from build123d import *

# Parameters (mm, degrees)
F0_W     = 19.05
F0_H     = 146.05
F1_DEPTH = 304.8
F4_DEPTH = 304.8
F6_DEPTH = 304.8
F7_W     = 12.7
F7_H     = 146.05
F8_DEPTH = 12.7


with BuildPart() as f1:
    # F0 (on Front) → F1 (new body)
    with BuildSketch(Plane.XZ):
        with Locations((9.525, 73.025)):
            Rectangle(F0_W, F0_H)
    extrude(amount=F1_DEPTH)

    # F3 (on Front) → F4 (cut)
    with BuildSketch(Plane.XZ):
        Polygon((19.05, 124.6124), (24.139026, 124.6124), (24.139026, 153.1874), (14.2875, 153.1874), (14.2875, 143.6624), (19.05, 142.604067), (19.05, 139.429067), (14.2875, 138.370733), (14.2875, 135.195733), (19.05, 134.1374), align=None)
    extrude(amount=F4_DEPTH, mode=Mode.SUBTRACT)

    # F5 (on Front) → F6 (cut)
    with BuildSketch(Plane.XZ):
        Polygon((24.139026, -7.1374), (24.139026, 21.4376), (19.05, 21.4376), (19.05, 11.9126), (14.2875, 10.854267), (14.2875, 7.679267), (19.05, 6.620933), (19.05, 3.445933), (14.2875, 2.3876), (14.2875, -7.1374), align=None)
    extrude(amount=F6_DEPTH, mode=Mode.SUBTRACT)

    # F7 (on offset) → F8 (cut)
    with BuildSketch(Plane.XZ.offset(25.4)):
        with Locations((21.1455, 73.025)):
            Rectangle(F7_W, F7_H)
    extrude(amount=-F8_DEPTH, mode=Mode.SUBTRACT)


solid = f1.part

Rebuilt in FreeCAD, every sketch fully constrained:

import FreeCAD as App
import Part
import Sketcher

V = App.Vector
Q = App.Units.Quantity


def add_polygon(sketch, points):
    """Adds a closed chain of lines whose ends are joined by coincident constraints."""
    first, n = sketch.GeometryCount, len(points)
    for a, b in zip(points, points[1:] + points[:1]):
        sketch.addGeometry(Part.LineSegment(App.Vector(*a, 0), App.Vector(*b, 0)), False)
    for i in range(n):
        sketch.addConstraint(Sketcher.Constraint("Coincident", first + i, 2, first + (i + 1) % n, 1))

doc = App.newDocument("Part")
params = doc.addObject("Spreadsheet::Sheet", "Params")
for row, (alias, value) in enumerate([
    ("sketch1_width", "0.75 in"),
    ("sketch1_height", "5.75 in"),
    ("pad1_length", "12 in"),
    ("sketch2_height", "1.125 in"),
    ("sketch2_height2", "0.375 in"),
    ("sketch2_height3", "0.125 in"),
    ("pocket1_length", "12 in"),
    ("sketch3_height", "1.125 in"),
    ("sketch3_height2", "0.375 in"),
    ("sketch3_height3", "0.125 in"),
    ("pocket2_length", "12 in"),
    ("sketch4_width", "0.5 in"),
    ("sketch4_height", "5.75 in"),
    ("pocket3_length", "0.5 in"),
], start=1):
    params.set(f"A{row}", alias)
    params.set(f"B{row}", "=" + value)
    params.setAlias(f"B{row}", alias)

body = doc.addObject("PartDesign::Body", "Body")

sketch1 = body.newObject("Sketcher::SketchObject", "Sketch")
sketch1.AttachmentSupport = (doc.getObject("XZ_Plane"), [""])
sketch1.MapMode = "FlatFace"
add_polygon(sketch1, [(0, 146), (0, 0), (19, 0), (19, 146)])
sketch1.addConstraint(Sketcher.Constraint("Vertical", 0))
sketch1.addConstraint(Sketcher.Constraint("Horizontal", 1))
sketch1.addConstraint(Sketcher.Constraint("Vertical", 2))
sketch1.addConstraint(Sketcher.Constraint("Horizontal", 3))
sketch1.addConstraint(Sketcher.Constraint("Coincident", 0, 2, -1, 1))
sketch1.addConstraint(Sketcher.Constraint("DistanceX", 1, 1, 1, 2, Q("0.75 in")))
sketch1.addConstraint(Sketcher.Constraint("DistanceY", 0, 2, 0, 1, Q("5.75 in")))
sketch1.setExpression("Constraints[9]", "Params.sketch1_width")
sketch1.setExpression("Constraints[10]", "Params.sketch1_height")
pad1 = body.newObject("PartDesign::Pad", "Pad")
pad1.Profile = sketch1
pad1.setExpression("Length", "Params.pad1_length")

sketch2 = body.newObject("Sketcher::SketchObject", "Sketch001")
sketch2.AttachmentSupport = (doc.getObject("XZ_Plane"), [""])
sketch2.MapMode = "FlatFace"
add_polygon(sketch2, [(19.1, 124.6), (24.1, 124.6), (24.1, 153.2), (14.3, 153.2), (14.3, 143.7), (19.1, 142.6), (19.1, 139.4), (14.3, 138.4), (14.3, 135.2), (19.1, 134.1)])
sketch2.addConstraint(Sketcher.Constraint("Horizontal", 0))
sketch2.addConstraint(Sketcher.Constraint("Vertical", 1))
sketch2.addConstraint(Sketcher.Constraint("Horizontal", 2))
sketch2.addConstraint(Sketcher.Constraint("Vertical", 3))
sketch2.addConstraint(Sketcher.Constraint("Vertical", 5))
sketch2.addConstraint(Sketcher.Constraint("Vertical", 7))
sketch2.addConstraint(Sketcher.Constraint("Vertical", 9))
sketch2.addConstraint(Sketcher.Constraint("Parallel", 4, 8))
sketch2.addConstraint(Sketcher.Constraint("Vertical", 3, 2, 6, 2))
sketch2.addConstraint(Sketcher.Constraint("Vertical", 5, 2, 8, 2))
sketch2.addConstraint(Sketcher.Constraint("Equal", 5, 7))
sketch2.addConstraint(Sketcher.Constraint("Equal", 3, 9))
sketch2.addConstraint(Sketcher.Constraint("Equal", 4, 6))
sketch2.addConstraint(Sketcher.Constraint("DistanceY", 1, 1, 1, 2, Q("1.125 in")))
sketch2.addConstraint(Sketcher.Constraint("DistanceY", 3, 2, 3, 1, Q("0.375 in")))
sketch2.addConstraint(Sketcher.Constraint("DistanceY", 5, 2, 5, 1, Q("0.125 in")))
sketch2.addConstraint(Sketcher.Constraint("DistanceX", -1, 1, 4, 2, Q("0.75 in")))
sketch2.addConstraint(Sketcher.Constraint("DistanceY", -1, 1, 0, 2, Q("4.906 in")))
sketch2.addConstraint(Sketcher.Constraint("DistanceX", -1, 1, 2, 2, Q("0.5625 in")))
sketch2.addConstraint(Sketcher.Constraint("DistanceX", 0, 1, 0, 2, 5.089026))
sketch2.setExpression("Constraints[23]", "Params.sketch2_height")
sketch2.setExpression("Constraints[24]", "Params.sketch2_height2")
sketch2.setExpression("Constraints[25]", "Params.sketch2_height3")
pocket1 = body.newObject("PartDesign::Pocket", "Pocket")
pocket1.Profile = sketch2
pocket1.setExpression("Length", "Params.pocket1_length")
pocket1.Reversed = True

sketch3 = body.newObject("Sketcher::SketchObject", "Sketch002")
sketch3.AttachmentSupport = (doc.getObject("XZ_Plane"), [""])
sketch3.MapMode = "FlatFace"
add_polygon(sketch3, [(24.1, -7.1), (24.1, 21.4), (19.1, 21.4), (19.1, 11.9), (14.3, 10.9), (14.3, 7.7), (19.1, 6.6), (19.1, 3.4), (14.3, 2.4), (14.3, -7.1)])
sketch3.addConstraint(Sketcher.Constraint("Vertical", 0))
sketch3.addConstraint(Sketcher.Constraint("Horizontal", 1))
sketch3.addConstraint(Sketcher.Constraint("Vertical", 2))
sketch3.addConstraint(Sketcher.Constraint("Vertical", 4))
sketch3.addConstraint(Sketcher.Constraint("Vertical", 6))
sketch3.addConstraint(Sketcher.Constraint("Vertical", 8))
sketch3.addConstraint(Sketcher.Constraint("Horizontal", 9))
sketch3.addConstraint(Sketcher.Constraint("Parallel", 3, 7))
sketch3.addConstraint(Sketcher.Constraint("Vertical", 2, 2, 5, 2))
sketch3.addConstraint(Sketcher.Constraint("Vertical", 4, 2, 7, 2))
sketch3.addConstraint(Sketcher.Constraint("Equal", 4, 6))
sketch3.addConstraint(Sketcher.Constraint("Equal", 2, 8))
sketch3.addConstraint(Sketcher.Constraint("Equal", 3, 5))
sketch3.addConstraint(Sketcher.Constraint("DistanceY", 0, 1, 0, 2, Q("1.125 in")))
sketch3.addConstraint(Sketcher.Constraint("DistanceY", 2, 2, 2, 1, Q("0.375 in")))
sketch3.addConstraint(Sketcher.Constraint("DistanceY", 4, 2, 4, 1, Q("0.125 in")))
sketch3.addConstraint(Sketcher.Constraint("DistanceX", -1, 1, 1, 2, Q("0.75 in")))
sketch3.addConstraint(Sketcher.Constraint("DistanceY", -1, 1, 0, 2, Q("0.844 in")))
sketch3.addConstraint(Sketcher.Constraint("DistanceX", -1, 1, 3, 2, Q("0.5625 in")))
sketch3.addConstraint(Sketcher.Constraint("DistanceX", 1, 2, 1, 1, 5.089026))
sketch3.setExpression("Constraints[23]", "Params.sketch3_height")
sketch3.setExpression("Constraints[24]", "Params.sketch3_height2")
sketch3.setExpression("Constraints[25]", "Params.sketch3_height3")
pocket2 = body.newObject("PartDesign::Pocket", "Pocket001")
pocket2.Profile = sketch3
pocket2.setExpression("Length", "Params.pocket2_length")
pocket2.Reversed = True

sketch4 = body.newObject("Sketcher::SketchObject", "Sketch003")
sketch4.AttachmentSupport = (doc.getObject("XZ_Plane"), [""])
sketch4.MapMode = "FlatFace"
sketch4.AttachmentOffset = App.Placement(V(0, 0, 1 * 25.4), App.Rotation())
add_polygon(sketch4, [(15, 146), (15, 0), (27, 0), (27, 146)])
sketch4.addConstraint(Sketcher.Constraint("Vertical", 0))
sketch4.addConstraint(Sketcher.Constraint("Horizontal", 1))
sketch4.addConstraint(Sketcher.Constraint("Vertical", 2))
sketch4.addConstraint(Sketcher.Constraint("Horizontal", 3))
sketch4.addConstraint(Sketcher.Constraint("PointOnObject", 0, 2, -1))
sketch4.addConstraint(Sketcher.Constraint("DistanceX", 1, 1, 1, 2, Q("0.5 in")))
sketch4.addConstraint(Sketcher.Constraint("DistanceY", 0, 2, 0, 1, Q("5.75 in")))
sketch4.addConstraint(Sketcher.Constraint("DistanceX", -1, 1, 0, 2, Q("0.5825 in")))
sketch4.setExpression("Constraints[9]", "Params.sketch4_width")
sketch4.setExpression("Constraints[10]", "Params.sketch4_height")
pocket3 = body.newObject("PartDesign::Pocket", "Pocket002")
pocket3.Profile = sketch4
pocket3.setExpression("Length", "Params.pocket3_length")

doc.recompute()
